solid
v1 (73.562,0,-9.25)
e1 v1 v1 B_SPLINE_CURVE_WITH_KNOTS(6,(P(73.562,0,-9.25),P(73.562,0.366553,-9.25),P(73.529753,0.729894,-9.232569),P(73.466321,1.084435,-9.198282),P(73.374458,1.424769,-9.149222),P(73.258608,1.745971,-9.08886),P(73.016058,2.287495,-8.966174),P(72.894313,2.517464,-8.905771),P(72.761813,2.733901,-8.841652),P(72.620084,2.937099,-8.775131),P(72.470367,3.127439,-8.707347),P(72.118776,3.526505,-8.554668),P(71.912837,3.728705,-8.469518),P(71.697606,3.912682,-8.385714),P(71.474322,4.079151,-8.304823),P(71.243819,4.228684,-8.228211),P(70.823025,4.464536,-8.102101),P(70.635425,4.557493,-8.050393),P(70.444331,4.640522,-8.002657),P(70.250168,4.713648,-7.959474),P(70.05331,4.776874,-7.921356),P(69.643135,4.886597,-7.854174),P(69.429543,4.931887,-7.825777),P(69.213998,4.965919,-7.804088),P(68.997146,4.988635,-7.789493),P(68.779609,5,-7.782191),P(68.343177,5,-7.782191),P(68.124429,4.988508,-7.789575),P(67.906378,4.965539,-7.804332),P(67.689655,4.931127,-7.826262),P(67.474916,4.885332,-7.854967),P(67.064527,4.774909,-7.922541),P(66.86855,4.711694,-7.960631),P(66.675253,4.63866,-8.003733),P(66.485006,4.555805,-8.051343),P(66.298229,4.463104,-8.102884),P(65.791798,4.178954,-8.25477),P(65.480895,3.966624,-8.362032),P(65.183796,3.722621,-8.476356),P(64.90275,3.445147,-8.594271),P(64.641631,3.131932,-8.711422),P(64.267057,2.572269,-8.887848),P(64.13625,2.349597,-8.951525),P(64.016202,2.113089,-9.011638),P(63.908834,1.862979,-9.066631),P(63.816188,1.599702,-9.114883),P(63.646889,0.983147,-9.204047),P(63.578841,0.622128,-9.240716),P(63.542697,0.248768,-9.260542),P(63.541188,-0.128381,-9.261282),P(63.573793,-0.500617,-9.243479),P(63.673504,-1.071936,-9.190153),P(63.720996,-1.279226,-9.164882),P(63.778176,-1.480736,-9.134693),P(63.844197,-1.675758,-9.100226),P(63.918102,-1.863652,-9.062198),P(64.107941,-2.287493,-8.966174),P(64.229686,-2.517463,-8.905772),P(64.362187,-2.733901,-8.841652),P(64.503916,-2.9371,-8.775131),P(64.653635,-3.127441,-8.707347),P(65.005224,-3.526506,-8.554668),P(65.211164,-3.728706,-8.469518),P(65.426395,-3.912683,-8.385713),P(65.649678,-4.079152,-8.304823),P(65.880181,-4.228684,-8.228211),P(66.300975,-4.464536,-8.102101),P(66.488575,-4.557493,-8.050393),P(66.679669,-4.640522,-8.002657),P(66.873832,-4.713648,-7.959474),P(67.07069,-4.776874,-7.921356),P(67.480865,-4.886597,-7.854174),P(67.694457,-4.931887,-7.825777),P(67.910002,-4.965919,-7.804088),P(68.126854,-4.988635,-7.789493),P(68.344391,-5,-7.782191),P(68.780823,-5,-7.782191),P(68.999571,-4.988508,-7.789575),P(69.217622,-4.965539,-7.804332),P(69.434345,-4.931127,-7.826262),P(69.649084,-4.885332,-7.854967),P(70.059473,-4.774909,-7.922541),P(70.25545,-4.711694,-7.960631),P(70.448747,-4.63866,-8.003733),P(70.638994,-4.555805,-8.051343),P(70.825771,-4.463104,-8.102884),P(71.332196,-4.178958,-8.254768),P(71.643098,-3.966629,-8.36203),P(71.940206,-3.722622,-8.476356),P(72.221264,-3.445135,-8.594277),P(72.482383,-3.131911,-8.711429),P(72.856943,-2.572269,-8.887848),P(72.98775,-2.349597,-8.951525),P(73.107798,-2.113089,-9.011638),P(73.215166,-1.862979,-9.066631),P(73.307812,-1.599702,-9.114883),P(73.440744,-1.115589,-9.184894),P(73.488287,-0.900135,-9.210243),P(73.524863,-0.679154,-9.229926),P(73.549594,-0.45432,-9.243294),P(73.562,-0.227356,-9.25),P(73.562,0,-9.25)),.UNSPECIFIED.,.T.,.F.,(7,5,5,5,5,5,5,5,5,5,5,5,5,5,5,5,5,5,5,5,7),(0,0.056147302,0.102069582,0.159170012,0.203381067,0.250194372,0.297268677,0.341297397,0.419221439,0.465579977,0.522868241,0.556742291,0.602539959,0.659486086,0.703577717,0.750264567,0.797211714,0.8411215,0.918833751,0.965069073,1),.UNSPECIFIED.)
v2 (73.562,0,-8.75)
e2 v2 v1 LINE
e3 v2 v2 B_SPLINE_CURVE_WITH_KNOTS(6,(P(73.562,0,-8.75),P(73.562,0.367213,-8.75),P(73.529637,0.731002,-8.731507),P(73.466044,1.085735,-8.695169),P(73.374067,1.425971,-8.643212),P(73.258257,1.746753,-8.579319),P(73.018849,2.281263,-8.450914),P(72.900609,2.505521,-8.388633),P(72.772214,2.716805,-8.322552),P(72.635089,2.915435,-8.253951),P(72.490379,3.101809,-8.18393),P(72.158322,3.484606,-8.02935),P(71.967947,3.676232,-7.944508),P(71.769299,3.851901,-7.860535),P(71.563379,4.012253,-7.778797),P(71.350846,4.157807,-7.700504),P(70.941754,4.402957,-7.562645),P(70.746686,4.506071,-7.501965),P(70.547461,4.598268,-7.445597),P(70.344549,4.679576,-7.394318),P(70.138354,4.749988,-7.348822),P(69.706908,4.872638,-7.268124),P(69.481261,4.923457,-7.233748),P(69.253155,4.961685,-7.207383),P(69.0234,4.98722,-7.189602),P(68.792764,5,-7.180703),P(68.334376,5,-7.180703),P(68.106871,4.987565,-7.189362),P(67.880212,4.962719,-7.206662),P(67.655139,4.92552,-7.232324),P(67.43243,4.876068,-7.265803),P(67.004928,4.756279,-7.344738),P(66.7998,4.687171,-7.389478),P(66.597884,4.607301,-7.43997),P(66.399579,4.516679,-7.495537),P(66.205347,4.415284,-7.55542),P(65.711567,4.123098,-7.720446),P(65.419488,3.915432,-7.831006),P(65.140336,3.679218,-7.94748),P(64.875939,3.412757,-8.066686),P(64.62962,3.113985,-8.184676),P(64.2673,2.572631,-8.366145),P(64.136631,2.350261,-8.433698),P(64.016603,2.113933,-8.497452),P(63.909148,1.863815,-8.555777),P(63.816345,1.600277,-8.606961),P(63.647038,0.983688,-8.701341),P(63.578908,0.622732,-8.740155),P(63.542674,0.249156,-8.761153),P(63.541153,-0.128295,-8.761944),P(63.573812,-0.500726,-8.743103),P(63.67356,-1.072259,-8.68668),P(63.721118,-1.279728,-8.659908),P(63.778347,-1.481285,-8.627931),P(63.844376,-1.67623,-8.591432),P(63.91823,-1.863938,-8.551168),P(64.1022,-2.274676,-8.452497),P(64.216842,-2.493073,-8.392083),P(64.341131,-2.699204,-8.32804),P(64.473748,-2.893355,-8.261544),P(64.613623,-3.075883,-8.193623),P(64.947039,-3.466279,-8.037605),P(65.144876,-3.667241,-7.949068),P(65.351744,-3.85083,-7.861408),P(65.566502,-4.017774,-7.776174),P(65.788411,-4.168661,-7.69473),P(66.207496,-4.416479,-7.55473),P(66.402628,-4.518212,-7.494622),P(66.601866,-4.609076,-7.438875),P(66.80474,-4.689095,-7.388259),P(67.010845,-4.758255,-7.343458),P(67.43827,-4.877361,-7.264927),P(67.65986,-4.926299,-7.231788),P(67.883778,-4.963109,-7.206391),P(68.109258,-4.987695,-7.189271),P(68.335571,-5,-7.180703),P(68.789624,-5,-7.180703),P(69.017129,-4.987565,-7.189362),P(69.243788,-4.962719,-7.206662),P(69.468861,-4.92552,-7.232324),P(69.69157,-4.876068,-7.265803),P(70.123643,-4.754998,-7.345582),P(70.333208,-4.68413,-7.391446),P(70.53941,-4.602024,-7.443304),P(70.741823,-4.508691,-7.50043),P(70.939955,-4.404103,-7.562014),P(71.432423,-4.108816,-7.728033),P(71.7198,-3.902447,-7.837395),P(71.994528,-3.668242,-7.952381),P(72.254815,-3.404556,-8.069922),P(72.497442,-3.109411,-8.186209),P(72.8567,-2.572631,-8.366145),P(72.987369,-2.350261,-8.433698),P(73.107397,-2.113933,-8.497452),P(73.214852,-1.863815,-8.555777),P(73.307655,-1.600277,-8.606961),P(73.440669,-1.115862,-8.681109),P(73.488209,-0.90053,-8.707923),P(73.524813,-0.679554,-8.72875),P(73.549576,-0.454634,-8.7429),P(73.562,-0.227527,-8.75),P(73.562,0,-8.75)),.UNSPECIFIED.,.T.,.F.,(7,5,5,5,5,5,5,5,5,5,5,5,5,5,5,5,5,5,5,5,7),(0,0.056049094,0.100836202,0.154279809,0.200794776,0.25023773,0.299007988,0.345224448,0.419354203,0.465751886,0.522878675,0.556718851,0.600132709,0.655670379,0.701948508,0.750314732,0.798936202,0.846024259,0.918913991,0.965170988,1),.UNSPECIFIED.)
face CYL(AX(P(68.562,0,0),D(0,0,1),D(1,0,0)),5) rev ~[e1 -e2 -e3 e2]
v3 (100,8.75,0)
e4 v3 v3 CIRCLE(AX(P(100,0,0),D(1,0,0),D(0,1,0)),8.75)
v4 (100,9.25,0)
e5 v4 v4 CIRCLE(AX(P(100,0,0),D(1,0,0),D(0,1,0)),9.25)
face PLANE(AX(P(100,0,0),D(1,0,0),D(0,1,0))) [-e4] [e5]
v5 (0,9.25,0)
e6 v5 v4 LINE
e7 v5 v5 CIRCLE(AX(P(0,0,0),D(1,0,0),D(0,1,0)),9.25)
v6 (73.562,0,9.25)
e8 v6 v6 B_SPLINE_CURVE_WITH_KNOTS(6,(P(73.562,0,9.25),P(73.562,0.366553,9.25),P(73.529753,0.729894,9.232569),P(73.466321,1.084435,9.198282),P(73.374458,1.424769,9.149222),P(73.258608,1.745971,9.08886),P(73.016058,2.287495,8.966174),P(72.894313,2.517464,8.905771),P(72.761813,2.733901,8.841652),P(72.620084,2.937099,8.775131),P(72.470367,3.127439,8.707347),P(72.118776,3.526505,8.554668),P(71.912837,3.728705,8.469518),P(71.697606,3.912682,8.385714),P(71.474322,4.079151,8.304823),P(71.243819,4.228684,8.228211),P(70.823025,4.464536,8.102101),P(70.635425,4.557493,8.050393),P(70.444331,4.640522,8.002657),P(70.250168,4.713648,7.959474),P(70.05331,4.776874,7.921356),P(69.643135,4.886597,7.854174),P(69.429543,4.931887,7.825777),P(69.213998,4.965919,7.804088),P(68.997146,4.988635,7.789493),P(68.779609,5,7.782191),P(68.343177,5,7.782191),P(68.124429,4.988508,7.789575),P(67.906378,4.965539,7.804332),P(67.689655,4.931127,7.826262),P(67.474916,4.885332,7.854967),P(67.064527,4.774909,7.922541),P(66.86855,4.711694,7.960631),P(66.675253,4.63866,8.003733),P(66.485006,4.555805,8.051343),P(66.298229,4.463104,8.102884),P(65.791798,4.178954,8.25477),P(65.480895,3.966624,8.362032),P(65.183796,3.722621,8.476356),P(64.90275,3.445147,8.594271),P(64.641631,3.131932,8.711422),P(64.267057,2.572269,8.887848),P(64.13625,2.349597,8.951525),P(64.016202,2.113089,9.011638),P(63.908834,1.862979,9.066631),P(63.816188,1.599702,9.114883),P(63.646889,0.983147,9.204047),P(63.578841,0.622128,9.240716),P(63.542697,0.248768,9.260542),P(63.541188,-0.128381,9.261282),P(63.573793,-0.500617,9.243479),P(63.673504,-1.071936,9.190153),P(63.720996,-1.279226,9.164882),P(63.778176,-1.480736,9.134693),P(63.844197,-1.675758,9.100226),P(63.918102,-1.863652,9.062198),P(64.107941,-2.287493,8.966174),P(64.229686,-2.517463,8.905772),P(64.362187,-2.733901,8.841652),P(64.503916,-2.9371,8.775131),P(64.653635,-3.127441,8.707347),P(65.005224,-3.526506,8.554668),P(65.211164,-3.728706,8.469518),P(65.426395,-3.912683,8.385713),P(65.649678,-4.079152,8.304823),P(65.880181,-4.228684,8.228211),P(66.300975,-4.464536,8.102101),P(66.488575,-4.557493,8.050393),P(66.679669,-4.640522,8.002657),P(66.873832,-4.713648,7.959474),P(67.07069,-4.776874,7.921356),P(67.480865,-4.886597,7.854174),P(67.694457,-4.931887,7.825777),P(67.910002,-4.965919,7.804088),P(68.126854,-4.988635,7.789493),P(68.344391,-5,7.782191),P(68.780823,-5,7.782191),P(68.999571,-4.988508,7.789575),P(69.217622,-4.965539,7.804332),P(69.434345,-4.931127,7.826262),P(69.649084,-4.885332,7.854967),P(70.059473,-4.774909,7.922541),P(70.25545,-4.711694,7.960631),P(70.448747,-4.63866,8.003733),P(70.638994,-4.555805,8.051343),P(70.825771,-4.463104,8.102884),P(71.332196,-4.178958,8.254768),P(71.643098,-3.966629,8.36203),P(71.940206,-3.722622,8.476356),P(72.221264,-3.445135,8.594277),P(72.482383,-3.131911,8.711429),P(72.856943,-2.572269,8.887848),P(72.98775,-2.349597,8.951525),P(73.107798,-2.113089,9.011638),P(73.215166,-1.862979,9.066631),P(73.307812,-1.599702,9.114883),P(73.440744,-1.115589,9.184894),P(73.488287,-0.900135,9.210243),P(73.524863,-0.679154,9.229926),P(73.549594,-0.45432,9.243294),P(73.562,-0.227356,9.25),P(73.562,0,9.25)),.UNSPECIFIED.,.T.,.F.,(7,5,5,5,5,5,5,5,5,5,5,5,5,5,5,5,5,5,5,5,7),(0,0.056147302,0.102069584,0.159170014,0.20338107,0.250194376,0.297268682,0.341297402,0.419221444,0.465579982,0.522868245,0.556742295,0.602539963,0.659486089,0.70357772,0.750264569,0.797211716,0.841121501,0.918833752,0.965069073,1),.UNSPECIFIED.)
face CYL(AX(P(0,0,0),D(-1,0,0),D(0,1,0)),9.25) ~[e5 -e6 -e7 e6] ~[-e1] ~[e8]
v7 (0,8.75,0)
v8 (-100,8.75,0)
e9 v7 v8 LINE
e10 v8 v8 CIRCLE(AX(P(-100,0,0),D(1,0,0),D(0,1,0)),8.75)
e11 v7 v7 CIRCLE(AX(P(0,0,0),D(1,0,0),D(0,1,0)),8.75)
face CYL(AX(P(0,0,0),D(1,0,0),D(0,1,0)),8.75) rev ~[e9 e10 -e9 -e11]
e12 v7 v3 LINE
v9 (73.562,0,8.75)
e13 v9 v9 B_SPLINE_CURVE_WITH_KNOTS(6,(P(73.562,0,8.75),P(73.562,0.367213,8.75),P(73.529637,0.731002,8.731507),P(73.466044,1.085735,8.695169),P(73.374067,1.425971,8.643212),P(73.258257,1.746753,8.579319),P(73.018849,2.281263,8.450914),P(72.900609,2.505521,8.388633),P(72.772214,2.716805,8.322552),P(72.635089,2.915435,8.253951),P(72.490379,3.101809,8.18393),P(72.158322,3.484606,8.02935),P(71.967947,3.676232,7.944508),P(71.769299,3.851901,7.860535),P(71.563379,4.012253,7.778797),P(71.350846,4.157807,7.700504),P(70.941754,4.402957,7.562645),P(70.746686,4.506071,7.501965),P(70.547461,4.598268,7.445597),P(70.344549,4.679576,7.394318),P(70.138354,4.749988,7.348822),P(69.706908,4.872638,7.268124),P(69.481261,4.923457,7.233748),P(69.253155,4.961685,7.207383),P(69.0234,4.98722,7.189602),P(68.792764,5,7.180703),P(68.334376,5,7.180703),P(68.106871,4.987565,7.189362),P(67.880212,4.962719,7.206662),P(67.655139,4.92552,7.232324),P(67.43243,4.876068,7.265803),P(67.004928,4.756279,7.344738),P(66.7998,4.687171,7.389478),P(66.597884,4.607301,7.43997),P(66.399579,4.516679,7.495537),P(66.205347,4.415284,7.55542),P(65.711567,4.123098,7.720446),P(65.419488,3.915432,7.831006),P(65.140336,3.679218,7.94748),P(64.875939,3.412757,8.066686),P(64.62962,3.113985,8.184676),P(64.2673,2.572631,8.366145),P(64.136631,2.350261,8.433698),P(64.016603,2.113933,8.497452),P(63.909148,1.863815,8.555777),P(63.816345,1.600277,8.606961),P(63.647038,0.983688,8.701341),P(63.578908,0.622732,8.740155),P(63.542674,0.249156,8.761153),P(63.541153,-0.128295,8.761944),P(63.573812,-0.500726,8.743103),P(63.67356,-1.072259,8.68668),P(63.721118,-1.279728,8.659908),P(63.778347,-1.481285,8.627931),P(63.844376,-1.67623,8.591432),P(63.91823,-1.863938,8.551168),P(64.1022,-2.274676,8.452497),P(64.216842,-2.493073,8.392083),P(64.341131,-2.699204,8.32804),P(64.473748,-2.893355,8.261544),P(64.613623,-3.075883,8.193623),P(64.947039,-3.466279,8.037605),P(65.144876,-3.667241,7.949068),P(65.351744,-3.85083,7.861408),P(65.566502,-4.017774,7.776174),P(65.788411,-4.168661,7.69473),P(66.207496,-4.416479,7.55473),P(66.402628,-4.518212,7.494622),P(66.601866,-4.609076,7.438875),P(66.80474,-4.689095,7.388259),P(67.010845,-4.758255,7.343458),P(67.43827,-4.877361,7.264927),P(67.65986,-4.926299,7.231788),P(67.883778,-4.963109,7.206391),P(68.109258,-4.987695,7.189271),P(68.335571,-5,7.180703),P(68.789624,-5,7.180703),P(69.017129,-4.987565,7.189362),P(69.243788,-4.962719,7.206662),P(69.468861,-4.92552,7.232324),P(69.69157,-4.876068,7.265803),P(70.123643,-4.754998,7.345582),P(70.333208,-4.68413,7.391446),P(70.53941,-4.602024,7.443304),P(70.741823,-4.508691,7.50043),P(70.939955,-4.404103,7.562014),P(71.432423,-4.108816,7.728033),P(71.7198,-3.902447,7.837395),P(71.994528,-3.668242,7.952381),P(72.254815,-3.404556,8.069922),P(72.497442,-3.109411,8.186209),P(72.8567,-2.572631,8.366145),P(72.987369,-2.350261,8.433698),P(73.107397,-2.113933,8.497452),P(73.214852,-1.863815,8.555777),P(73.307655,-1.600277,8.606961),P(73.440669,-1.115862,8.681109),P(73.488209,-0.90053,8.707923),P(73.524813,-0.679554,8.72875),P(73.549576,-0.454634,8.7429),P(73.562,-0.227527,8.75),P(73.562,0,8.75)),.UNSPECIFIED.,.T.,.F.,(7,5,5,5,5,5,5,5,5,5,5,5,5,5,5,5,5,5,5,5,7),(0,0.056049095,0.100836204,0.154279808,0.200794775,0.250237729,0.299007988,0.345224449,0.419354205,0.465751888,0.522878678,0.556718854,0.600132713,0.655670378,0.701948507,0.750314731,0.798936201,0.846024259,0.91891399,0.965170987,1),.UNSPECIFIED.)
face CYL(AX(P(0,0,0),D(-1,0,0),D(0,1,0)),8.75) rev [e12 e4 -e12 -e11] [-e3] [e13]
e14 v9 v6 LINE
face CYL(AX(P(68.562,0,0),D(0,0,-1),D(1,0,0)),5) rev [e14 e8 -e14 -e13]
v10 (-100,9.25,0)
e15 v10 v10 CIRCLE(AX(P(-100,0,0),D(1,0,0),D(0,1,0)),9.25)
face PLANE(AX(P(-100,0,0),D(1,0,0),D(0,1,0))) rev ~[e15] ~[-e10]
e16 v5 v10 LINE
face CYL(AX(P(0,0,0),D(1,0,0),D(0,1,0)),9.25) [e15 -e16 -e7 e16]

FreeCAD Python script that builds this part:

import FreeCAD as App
import Part
import Sketcher
from FreeCAD import Vector

doc = App.newDocument("Part")
params = doc.addObject("Spreadsheet::Sheet", "Params")
for row, (alias, value) in enumerate([
    ("sketch1_diameter", "18.5 mm"),
    ("sketch1_diameter2", "17.5 mm"),
    ("pad1_length", "200 mm"),
    ("sketch2_diameter", "10 mm"),
], start=1):
    params.set(f"A{row}", alias)
    params.set(f"B{row}", "=" + value)
    params.setAlias(f"B{row}", alias)

body = doc.addObject("PartDesign::Body", "Body")

sketch1 = body.newObject("Sketcher::SketchObject", "Sketch")
sketch1.AttachmentSupport = (doc.getObject("YZ_Plane"), [""])
sketch1.MapMode = "FlatFace"
sketch1.addGeometry(Part.Circle(Vector(0, 0, 0), Vector(0, 0, 1), 9), False)
sketch1.addGeometry(Part.Circle(Vector(0, 0, 0), Vector(0, 0, 1), 9), False)
sketch1.addConstraint(Sketcher.Constraint("Coincident", 0, 3, -1, 1))
sketch1.addConstraint(Sketcher.Constraint("Coincident", 1, 3, -1, 1))
sketch1.addConstraint(Sketcher.Constraint("Diameter", 0, 18.5))
sketch1.addConstraint(Sketcher.Constraint("Diameter", 1, 17.5))
sketch1.setExpression("Constraints[2]", "Params.sketch1_diameter")
sketch1.setExpression("Constraints[3]", "Params.sketch1_diameter2")
pad1 = body.newObject("PartDesign::Pad", "Pad")
pad1.Profile = sketch1
pad1.setExpression("Length", "Params.pad1_length")
pad1.Midplane = True

sketch2 = body.newObject("Sketcher::SketchObject", "Sketch001")
sketch2.AttachmentSupport = (doc.getObject("XY_Plane"), [""])
sketch2.MapMode = "FlatFace"
sketch2.addGeometry(Part.Circle(Vector(69, 0, 0), Vector(0, 0, 1), 5), False)
sketch2.addConstraint(Sketcher.Constraint("PointOnObject", 0, 3, -1))
sketch2.addConstraint(Sketcher.Constraint("Diameter", 0, 10.0))
sketch2.addConstraint(Sketcher.Constraint("DistanceX", -1, 1, 0, 3, 68.562))
sketch2.setExpression("Constraints[1]", "Params.sketch2_diameter")
pocket1 = body.newObject("PartDesign::Pocket", "Pocket")
pocket1.Profile = sketch2
pocket1.Type = "ThroughAll"
pocket1.Midplane = True

doc.recompute()
